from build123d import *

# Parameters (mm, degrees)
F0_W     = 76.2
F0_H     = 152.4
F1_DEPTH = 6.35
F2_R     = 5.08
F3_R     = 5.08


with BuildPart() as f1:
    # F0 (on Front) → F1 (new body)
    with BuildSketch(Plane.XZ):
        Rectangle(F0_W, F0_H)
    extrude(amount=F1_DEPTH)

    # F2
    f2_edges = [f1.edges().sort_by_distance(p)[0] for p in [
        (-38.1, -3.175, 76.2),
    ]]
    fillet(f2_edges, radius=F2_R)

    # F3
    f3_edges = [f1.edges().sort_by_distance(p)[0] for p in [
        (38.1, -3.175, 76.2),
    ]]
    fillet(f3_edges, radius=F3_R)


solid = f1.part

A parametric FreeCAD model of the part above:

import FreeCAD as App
import Part
import Sketcher

V = App.Vector
Q = App.Units.Quantity


def edges_at(feature, points):
    """Names of the edges that pass closest to the given points."""
    edges = feature.Shape.Edges
    near = lambda p: min(range(len(edges)), key=lambda i: edges[i].distToShape(Part.Vertex(*p))[0])
    return sorted({f"Edge{near(p) + 1}" for p in points})

doc = App.newDocument("Part")
params = doc.addObject("Spreadsheet::Sheet", "Params")
for row, (alias, value) in enumerate([
    ("sketch1_width", "3 in"),
    ("sketch1_height", "6 in"),
    ("pad1_length", "0.25 in"),
    ("fillet_radius", "0.2 in"),
    ("fillet2_radius", "0.2 in"),
], start=1):
    params.set(f"A{row}", alias)
    params.set(f"B{row}", "=" + value)
    params.setAlias(f"B{row}", alias)

body = doc.addObject("PartDesign::Body", "Body")

# Sketch on XZ plane
sketch1 = body.newObject("Sketcher::SketchObject", "Sketch")
sketch1.AttachmentSupport = (doc.getObject("XZ_Plane"), [""])
sketch1.MapMode = "FlatFace"
sketch1.addGeometry([
    Part.LineSegment(V(-38, 76, 0), V(-38, -76, 0)),
    Part.LineSegment(V(-38, -76, 0), V(38, -76, 0)),
    Part.LineSegment(V(38, -76, 0), V(38, 76, 0)),
    Part.LineSegment(V(38, 76, 0), V(-38, 76, 0)),
], False)
sketch1.addConstraint([
    Sketcher.Constraint("Coincident", 0, 2, 1, 1),
    Sketcher.Constraint("Coincident", 1, 2, 2, 1),
    Sketcher.Constraint("Coincident", 2, 2, 3, 1),
    Sketcher.Constraint("Coincident", 3, 2, 0, 1),
    Sketcher.Constraint("Vertical", 0),
    Sketcher.Constraint("Horizontal", 1),
    Sketcher.Constraint("Vertical", 2),
    Sketcher.Constraint("Horizontal", 3),
    Sketcher.Constraint("Symmetric", 0, 2, 2, 2, -1, 1),
    Sketcher.Constraint("DistanceX", 1, 1, 1, 2, Q("3 in")),
    Sketcher.Constraint("DistanceY", 0, 2, 0, 1, Q("6 in")),
])
sketch1.setExpression("Constraints[9]", "Params.sketch1_width")
sketch1.setExpression("Constraints[10]", "Params.sketch1_height")
pad1 = body.newObject("PartDesign::Pad", "Pad")
pad1.Profile = sketch1
pad1.setExpression("Length", "Params.pad1_length")
doc.recompute()

fillet = body.newObject("PartDesign::Fillet", "Fillet")
fillet.Base = (pad1, edges_at(pad1, [(-38.1, -3.175, 76.2)]))
fillet.setExpression("Radius", "Params.fillet_radius")
doc.recompute()

fillet2 = body.newObject("PartDesign::Fillet", "Fillet001")
fillet2.Base = (fillet, edges_at(fillet, [(38.1, -3.175, 76.2)]))
fillet2.setExpression("Radius", "Params.fillet2_radius")

doc.recompute()
